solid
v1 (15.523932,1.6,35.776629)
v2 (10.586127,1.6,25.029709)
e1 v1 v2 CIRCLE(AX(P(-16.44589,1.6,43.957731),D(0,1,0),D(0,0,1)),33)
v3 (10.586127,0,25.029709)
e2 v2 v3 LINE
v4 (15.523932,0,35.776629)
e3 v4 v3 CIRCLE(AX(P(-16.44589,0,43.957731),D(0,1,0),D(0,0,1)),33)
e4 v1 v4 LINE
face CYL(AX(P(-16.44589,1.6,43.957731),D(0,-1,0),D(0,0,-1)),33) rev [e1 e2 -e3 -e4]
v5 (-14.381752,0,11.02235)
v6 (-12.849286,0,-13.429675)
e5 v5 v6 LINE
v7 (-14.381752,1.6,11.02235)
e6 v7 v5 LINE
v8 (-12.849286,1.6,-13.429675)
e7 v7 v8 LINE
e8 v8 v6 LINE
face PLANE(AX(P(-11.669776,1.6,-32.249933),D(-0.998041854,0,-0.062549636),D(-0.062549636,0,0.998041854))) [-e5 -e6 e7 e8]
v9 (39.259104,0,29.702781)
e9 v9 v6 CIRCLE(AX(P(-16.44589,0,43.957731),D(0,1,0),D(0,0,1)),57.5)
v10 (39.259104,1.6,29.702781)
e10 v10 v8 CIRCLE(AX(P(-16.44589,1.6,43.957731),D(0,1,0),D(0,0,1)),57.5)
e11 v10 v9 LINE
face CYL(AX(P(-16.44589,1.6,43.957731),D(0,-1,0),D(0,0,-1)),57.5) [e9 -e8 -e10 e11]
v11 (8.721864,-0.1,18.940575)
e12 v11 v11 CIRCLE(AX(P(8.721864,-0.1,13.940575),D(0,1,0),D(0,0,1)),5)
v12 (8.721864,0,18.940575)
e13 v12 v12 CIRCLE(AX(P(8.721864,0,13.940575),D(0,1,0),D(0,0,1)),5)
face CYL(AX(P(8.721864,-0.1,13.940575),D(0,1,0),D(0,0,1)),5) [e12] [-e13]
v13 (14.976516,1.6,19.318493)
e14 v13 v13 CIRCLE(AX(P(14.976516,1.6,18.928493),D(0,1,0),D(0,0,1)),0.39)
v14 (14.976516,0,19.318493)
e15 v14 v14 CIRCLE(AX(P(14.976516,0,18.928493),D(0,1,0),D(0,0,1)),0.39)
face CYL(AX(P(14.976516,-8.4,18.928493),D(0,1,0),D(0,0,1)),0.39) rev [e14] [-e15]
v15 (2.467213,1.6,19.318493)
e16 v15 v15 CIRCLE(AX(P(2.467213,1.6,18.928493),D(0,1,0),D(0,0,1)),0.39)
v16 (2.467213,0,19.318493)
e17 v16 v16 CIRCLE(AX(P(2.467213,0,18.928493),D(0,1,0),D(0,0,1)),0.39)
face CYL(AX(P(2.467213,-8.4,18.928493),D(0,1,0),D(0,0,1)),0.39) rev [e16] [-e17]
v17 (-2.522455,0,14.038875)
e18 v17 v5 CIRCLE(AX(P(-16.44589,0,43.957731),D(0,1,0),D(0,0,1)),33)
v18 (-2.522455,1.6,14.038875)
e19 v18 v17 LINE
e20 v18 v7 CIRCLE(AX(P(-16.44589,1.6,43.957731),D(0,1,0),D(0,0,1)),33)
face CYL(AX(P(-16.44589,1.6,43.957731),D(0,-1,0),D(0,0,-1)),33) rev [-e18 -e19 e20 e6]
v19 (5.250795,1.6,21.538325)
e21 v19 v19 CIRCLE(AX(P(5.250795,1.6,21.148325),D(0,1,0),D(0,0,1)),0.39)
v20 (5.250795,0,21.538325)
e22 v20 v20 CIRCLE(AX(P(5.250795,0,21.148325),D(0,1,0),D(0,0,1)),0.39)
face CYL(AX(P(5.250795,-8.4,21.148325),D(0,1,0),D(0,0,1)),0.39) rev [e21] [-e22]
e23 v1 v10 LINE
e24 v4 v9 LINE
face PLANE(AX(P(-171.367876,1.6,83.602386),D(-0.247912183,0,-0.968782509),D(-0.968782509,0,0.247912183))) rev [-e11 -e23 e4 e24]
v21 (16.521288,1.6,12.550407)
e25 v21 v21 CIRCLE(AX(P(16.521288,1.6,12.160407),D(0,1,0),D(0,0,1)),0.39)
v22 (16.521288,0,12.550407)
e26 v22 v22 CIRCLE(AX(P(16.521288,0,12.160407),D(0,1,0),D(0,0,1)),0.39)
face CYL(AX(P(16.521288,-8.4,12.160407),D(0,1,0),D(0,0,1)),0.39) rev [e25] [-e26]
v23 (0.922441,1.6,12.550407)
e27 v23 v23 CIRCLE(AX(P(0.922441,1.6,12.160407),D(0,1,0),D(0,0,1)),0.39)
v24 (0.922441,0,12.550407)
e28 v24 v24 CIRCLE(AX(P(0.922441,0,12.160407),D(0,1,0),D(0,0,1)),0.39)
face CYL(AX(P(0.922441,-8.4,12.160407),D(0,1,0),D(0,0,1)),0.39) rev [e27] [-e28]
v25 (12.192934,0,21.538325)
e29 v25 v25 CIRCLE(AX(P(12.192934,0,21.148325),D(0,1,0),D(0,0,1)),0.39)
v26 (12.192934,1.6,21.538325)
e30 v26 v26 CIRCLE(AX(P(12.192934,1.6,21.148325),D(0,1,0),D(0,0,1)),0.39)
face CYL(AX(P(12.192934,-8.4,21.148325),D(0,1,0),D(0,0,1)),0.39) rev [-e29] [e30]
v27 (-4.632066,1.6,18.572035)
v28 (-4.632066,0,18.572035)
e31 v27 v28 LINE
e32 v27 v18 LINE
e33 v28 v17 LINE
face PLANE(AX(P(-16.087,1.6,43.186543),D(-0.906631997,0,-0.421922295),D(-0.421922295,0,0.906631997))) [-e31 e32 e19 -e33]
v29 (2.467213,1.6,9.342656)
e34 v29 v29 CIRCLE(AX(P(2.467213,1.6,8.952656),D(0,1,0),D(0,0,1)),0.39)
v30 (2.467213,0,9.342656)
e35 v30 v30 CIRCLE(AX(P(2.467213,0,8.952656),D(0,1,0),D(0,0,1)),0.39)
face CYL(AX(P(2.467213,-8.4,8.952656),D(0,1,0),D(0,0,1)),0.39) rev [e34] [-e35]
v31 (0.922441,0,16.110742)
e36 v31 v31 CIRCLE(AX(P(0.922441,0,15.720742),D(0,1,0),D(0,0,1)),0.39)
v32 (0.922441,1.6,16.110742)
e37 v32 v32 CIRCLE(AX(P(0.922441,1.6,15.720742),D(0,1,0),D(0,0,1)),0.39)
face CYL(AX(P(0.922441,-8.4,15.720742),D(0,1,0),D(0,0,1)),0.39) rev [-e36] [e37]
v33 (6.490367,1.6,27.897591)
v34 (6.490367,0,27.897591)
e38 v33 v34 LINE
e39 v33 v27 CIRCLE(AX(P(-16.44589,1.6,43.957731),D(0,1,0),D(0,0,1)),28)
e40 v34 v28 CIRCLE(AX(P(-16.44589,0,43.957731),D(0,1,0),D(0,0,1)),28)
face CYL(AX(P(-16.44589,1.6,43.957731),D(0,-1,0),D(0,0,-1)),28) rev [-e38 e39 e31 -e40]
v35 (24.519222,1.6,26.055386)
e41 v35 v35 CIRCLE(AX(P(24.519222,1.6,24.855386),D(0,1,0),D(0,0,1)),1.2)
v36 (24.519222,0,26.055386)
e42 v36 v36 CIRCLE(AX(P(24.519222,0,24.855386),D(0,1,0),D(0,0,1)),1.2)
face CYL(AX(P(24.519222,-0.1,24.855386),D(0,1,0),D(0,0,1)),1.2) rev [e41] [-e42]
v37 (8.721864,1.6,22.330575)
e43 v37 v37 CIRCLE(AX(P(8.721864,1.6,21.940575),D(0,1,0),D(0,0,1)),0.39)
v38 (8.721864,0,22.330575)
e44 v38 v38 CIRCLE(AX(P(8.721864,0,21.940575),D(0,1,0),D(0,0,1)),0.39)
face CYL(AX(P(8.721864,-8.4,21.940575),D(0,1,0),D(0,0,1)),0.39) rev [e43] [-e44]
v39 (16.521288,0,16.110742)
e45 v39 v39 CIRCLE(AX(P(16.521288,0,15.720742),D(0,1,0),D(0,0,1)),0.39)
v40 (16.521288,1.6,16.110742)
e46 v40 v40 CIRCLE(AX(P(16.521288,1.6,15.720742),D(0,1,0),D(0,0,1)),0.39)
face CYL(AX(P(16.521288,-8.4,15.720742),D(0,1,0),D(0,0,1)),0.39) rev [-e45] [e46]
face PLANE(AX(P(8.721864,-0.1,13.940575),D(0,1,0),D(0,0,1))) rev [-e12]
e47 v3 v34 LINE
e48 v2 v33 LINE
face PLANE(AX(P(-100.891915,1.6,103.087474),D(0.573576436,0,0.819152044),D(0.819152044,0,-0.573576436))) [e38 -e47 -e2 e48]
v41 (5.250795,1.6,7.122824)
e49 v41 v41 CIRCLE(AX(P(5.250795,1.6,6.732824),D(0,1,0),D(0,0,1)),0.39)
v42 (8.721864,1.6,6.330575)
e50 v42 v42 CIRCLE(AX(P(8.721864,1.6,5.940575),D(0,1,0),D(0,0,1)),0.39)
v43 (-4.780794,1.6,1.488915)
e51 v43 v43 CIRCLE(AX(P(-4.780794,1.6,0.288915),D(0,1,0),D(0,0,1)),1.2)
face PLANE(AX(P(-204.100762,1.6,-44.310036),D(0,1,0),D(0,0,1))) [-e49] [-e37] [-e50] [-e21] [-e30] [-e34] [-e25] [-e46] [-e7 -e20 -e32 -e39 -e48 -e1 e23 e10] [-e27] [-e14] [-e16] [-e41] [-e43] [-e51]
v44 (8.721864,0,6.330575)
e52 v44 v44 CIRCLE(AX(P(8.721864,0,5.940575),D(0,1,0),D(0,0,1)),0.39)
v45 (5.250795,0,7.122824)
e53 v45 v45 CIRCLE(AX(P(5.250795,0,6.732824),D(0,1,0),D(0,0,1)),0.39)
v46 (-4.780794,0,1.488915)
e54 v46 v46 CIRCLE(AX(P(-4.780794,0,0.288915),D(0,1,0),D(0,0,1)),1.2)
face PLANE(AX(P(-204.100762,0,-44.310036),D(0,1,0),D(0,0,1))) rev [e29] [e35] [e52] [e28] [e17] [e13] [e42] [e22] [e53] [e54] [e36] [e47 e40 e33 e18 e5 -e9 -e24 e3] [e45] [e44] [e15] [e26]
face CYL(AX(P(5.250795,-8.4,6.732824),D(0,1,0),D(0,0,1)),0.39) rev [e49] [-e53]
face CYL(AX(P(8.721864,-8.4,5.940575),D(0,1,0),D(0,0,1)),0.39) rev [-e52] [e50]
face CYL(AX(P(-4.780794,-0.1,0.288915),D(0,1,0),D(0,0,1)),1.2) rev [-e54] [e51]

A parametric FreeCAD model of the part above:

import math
import FreeCAD as App
import Part
import Sketcher
from FreeCAD import Vector
Q = App.Units.Quantity

doc = App.newDocument("Part")
body = doc.addObject("PartDesign::Body", "Body")

sketch1 = body.newObject("Sketcher::SketchObject", "Sketch")
sketch1.AttachmentSupport = (doc.getObject("XZ_Plane"), [""])
sketch1.MapMode = "FlatFace"
sketch1.addGeometry([
    Part.LineSegment(Vector(-13, -13, 0), Vector(-14, 11, 0)),
    Part.ArcOfCircle(Part.Circle(Vector(-16, 44, 0), Vector(0, 0, 1), 33), math.radians(-86), math.radians(-65)),
    Part.LineSegment(Vector(-3, 14, 0), Vector(-5, 19, 0)),
    Part.ArcOfCircle(Part.Circle(Vector(-16, 44, 0), Vector(0, 0, 1), 28), math.radians(-65), math.radians(-35)),
    Part.LineSegment(Vector(6, 28, 0), Vector(11, 25, 0)),
    Part.ArcOfCircle(Part.Circle(Vector(-16, 44, 0), Vector(0, 0, 1), 33), math.radians(-35), math.radians(-14)),
    Part.LineSegment(Vector(16, 36, 0), Vector(39, 30, 0)),
    Part.ArcOfCircle(Part.Circle(Vector(-16, 44, 0), Vector(0, 0, 1), 58), math.radians(-86), math.radians(-14)),
    Part.Circle(Vector(9, 14, 0), Vector(0, 0, 1), 5),
], False)
sketch1.addConstraint([
    Sketcher.Constraint("Coincident", 0, 2, 1, 1),
    Sketcher.Constraint("Coincident", 1, 2, 2, 1),
    Sketcher.Constraint("Coincident", 2, 2, 3, 1),
    Sketcher.Constraint("Coincident", 3, 2, 4, 1),
    Sketcher.Constraint("Coincident", 4, 2, 5, 1),
    Sketcher.Constraint("Coincident", 5, 2, 6, 1),
    Sketcher.Constraint("Coincident", 6, 2, 7, 2),
    Sketcher.Constraint("Coincident", 7, 1, 0, 1),
    Sketcher.Constraint("Coincident", 3, 3, 1, 3),
    Sketcher.Constraint("Coincident", 5, 3, 1, 3),
    Sketcher.Constraint("Coincident", 7, 3, 1, 3),
    Sketcher.Constraint("Equal", 1, 5),
    Sketcher.Constraint("Diameter", 8, Q("10 mm")),
    Sketcher.Constraint("Radius", 1, Q("33 mm")),
    Sketcher.Constraint("Radius", 3, Q("28 mm")),
    Sketcher.Constraint("Radius", 7, Q("57.5 mm")),
    Sketcher.Constraint("Angle", 4, Q("-35 deg")),
    Sketcher.Constraint("DistanceX", 2, 2, 5, 2, Q("20.155999 mm")),
    Sketcher.Constraint("DistanceY", 8, 3, 1, 2, Q("0.098301 mm")),
    Sketcher.Constraint("DistanceX", 1, 3, -1, 1, Q("16.44589 mm")),
    Sketcher.Constraint("DistanceY", -1, 1, 1, 3, Q("43.957731 mm")),
    Sketcher.Constraint("DistanceY", -1, 1, 0, 2, Q("11.02235 mm")),
    Sketcher.Constraint("DistanceY", -1, 1, 3, 2, Q("27.897591 mm")),
    Sketcher.Constraint("DistanceY", -1, 1, 5, 2, Q("35.776629 mm")),
    Sketcher.Constraint("DistanceY", -1, 1, 6, 2, Q("29.702781 mm")),
    Sketcher.Constraint("DistanceX", 1, 2, 8, 3, Q("11.244319 mm")),
    Sketcher.Constraint("DistanceX", 2, 2, 1, 2, Q("2.109611 mm")),
    Sketcher.Constraint("DistanceX", 7, 1, 1, 2, Q("10.326832 mm")),
])
pad1 = body.newObject("PartDesign::Pad", "Pad")
pad1.Profile = sketch1
pad1.Length = 1.6
pad1.Reversed = True

sketch2 = body.newObject("Sketcher::SketchObject", "Sketch001")
sketch2.AttachmentSupport = (doc.getObject("XZ_Plane"), [""])
sketch2.MapMode = "FlatFace"
sketch2.AttachmentOffset = App.Placement(Vector(0, 0, -1.6), App.Rotation())
sketch2.addGeometry([
    Part.Circle(Vector(-4.8, 0.3, 0), Vector(0, 0, 1), 1.2),
    Part.Circle(Vector(24.5, 24.9, 0), Vector(0, 0, 1), 1.2),
], False)
sketch2.addConstraint([
    Sketcher.Constraint("Equal", 0, 1),
    Sketcher.Constraint("Diameter", 0, Q("2.4 mm")),
    Sketcher.Constraint("DistanceX", -1, 1, 1, 3, Q("24.519222 mm")),
    Sketcher.Constraint("DistanceY", 0, 3, 1, 3, Q("24.566471 mm")),
    Sketcher.Constraint("DistanceX", 0, 3, -1, 1, Q("4.780794 mm")),
    Sketcher.Constraint("DistanceY", -1, 1, 0, 3, Q("0.288915 mm")),
])
pocket1 = body.newObject("PartDesign::Pocket", "Pocket")
pocket1.Profile = sketch2
pocket1.Length = 1.7
pocket1.Reversed = True

sketch3 = body.newObject("Sketcher::SketchObject", "Sketch002")
sketch3.AttachmentSupport = (doc.getObject("XZ_Plane"), [""])
sketch3.MapMode = "FlatFace"
sketch3.AttachmentOffset = App.Placement(Vector(0, 0, -1.6), App.Rotation())
sketch3.addGeometry([
    Part.Circle(Vector(5.25, 6.73, 0), Vector(0, 0, 1), 0.39),
    Part.Circle(Vector(8.72, 5.94, 0), Vector(0, 0, 1), 0.39),
    Part.Circle(Vector(2.47, 8.95, 0), Vector(0, 0, 1), 0.39),
    Part.Circle(Vector(0.92, 12.16, 0), Vector(0, 0, 1), 0.39),
    Part.Circle(Vector(0.92, 15.72, 0), Vector(0, 0, 1), 0.39),
    Part.Circle(Vector(2.47, 18.93, 0), Vector(0, 0, 1), 0.39),
    Part.Circle(Vector(5.25, 21.15, 0), Vector(0, 0, 1), 0.39),
    Part.Circle(Vector(8.72, 21.94, 0), Vector(0, 0, 1), 0.39),
    Part.Circle(Vector(12.19, 21.15, 0), Vector(0, 0, 1), 0.39),
    Part.Circle(Vector(14.98, 18.93, 0), Vector(0, 0, 1), 0.39),
    Part.Circle(Vector(16.52, 15.72, 0), Vector(0, 0, 1), 0.39),
    Part.Circle(Vector(16.52, 12.16, 0), Vector(0, 0, 1), 0.39),
], False)
sketch3.addConstraint([
    Sketcher.Constraint("Equal", 0, 1),
    Sketcher.Constraint("Equal", 1, 2),
    Sketcher.Constraint("Equal", 2, 3),
    Sketcher.Constraint("Equal", 3, 4),
    Sketcher.Constraint("Equal", 4, 5),
    Sketcher.Constraint("Equal", 5, 6),
    Sketcher.Constraint("Equal", 6, 7),
    Sketcher.Constraint("Equal", 7, 8),
    Sketcher.Constraint("Equal", 8, 9),
    Sketcher.Constraint("Equal", 9, 10),
    Sketcher.Constraint("Equal", 10, 11),
    Sketcher.Constraint("Horizontal", 6, 3, 8, 3),
    Sketcher.Constraint("Horizontal", 5, 3, 9, 3),
    Sketcher.Constraint("Horizontal", 4, 3, 10, 3),
    Sketcher.Constraint("Horizontal", 3, 3, 11, 3),
    Sketcher.Constraint("Vertical", 3, 3, 4, 3),
    Sketcher.Constraint("Vertical", 2, 3, 5, 3),
    Sketcher.Constraint("Vertical", 0, 3, 6, 3),
    Sketcher.Constraint("Vertical", 1, 3, 7, 3),
    Sketcher.Constraint("Vertical", 10, 3, 11, 3),
    Sketcher.Constraint("Diameter", 0, Q("0.78 mm")),
    Sketcher.Constraint("DistanceY", 0, 3, 6, 3, Q("14.415502 mm")),
    Sketcher.Constraint("DistanceX", -1, 1, 3, 3, Q("0.922441 mm")),
    Sketcher.Constraint("DistanceX", 0, 3, 1, 3, Q("3.47107 mm")),
    Sketcher.Constraint("DistanceY", 1, 3, 0, 3, Q("0.792249 mm")),
    Sketcher.Constraint("DistanceX", 2, 3, 0, 3, Q("2.783582 mm")),
    Sketcher.Constraint("DistanceY", 1, 3, 2, 3, Q("3.012082 mm")),
    Sketcher.Constraint("DistanceX", 3, 3, 2, 3, Q("1.544771 mm")),
    Sketcher.Constraint("DistanceY", 2, 3, 3, 3, Q("3.207751 mm")),
    Sketcher.Constraint("DistanceY", 0, 3, 4, 3, Q("8.987918 mm")),
    Sketcher.Constraint("DistanceY", 4, 3, 5, 3, Q("3.207751 mm")),
    Sketcher.Constraint("DistanceY", 6, 3, 7, 3, Q("0.792249 mm")),
    Sketcher.Constraint("DistanceX", 7, 3, 8, 3, Q("3.47107 mm")),
    Sketcher.Constraint("DistanceX", 8, 3, 9, 3, Q("2.783582 mm")),
    Sketcher.Constraint("DistanceX", 9, 3, 10, 3, Q("1.544771 mm")),
    Sketcher.Constraint("DistanceY", -1, 1, 0, 3, Q("6.732824 mm")),
])
pocket2 = body.newObject("PartDesign::Pocket", "Pocket001")
pocket2.Profile = sketch3
pocket2.Length = 10
pocket2.Reversed = True

sketch4 = body.newObject("Sketcher::SketchObject", "Sketch003")
sketch4.AttachmentSupport = (doc.getObject("XZ_Plane"), [""])
sketch4.MapMode = "FlatFace"
sketch4.AttachmentOffset = App.Placement(Vector(0, 0, 0.1), App.Rotation())
sketch4.addGeometry(Part.Circle(Vector(9, 14, 0), Vector(0, 0, 1), 5), False)
sketch4.addConstraint([
    Sketcher.Constraint("Diameter", 0, Q("10 mm")),
    Sketcher.Constraint("DistanceX", -1, 1, 0, 3, Q("8.721864 mm")),
    Sketcher.Constraint("DistanceY", -1, 1, 0, 3, Q("13.940575 mm")),
])
pad2 = body.newObject("PartDesign::Pad", "Pad001")
pad2.Profile = sketch4
pad2.Length = 1.7
pad2.Reversed = True

doc.recompute()
